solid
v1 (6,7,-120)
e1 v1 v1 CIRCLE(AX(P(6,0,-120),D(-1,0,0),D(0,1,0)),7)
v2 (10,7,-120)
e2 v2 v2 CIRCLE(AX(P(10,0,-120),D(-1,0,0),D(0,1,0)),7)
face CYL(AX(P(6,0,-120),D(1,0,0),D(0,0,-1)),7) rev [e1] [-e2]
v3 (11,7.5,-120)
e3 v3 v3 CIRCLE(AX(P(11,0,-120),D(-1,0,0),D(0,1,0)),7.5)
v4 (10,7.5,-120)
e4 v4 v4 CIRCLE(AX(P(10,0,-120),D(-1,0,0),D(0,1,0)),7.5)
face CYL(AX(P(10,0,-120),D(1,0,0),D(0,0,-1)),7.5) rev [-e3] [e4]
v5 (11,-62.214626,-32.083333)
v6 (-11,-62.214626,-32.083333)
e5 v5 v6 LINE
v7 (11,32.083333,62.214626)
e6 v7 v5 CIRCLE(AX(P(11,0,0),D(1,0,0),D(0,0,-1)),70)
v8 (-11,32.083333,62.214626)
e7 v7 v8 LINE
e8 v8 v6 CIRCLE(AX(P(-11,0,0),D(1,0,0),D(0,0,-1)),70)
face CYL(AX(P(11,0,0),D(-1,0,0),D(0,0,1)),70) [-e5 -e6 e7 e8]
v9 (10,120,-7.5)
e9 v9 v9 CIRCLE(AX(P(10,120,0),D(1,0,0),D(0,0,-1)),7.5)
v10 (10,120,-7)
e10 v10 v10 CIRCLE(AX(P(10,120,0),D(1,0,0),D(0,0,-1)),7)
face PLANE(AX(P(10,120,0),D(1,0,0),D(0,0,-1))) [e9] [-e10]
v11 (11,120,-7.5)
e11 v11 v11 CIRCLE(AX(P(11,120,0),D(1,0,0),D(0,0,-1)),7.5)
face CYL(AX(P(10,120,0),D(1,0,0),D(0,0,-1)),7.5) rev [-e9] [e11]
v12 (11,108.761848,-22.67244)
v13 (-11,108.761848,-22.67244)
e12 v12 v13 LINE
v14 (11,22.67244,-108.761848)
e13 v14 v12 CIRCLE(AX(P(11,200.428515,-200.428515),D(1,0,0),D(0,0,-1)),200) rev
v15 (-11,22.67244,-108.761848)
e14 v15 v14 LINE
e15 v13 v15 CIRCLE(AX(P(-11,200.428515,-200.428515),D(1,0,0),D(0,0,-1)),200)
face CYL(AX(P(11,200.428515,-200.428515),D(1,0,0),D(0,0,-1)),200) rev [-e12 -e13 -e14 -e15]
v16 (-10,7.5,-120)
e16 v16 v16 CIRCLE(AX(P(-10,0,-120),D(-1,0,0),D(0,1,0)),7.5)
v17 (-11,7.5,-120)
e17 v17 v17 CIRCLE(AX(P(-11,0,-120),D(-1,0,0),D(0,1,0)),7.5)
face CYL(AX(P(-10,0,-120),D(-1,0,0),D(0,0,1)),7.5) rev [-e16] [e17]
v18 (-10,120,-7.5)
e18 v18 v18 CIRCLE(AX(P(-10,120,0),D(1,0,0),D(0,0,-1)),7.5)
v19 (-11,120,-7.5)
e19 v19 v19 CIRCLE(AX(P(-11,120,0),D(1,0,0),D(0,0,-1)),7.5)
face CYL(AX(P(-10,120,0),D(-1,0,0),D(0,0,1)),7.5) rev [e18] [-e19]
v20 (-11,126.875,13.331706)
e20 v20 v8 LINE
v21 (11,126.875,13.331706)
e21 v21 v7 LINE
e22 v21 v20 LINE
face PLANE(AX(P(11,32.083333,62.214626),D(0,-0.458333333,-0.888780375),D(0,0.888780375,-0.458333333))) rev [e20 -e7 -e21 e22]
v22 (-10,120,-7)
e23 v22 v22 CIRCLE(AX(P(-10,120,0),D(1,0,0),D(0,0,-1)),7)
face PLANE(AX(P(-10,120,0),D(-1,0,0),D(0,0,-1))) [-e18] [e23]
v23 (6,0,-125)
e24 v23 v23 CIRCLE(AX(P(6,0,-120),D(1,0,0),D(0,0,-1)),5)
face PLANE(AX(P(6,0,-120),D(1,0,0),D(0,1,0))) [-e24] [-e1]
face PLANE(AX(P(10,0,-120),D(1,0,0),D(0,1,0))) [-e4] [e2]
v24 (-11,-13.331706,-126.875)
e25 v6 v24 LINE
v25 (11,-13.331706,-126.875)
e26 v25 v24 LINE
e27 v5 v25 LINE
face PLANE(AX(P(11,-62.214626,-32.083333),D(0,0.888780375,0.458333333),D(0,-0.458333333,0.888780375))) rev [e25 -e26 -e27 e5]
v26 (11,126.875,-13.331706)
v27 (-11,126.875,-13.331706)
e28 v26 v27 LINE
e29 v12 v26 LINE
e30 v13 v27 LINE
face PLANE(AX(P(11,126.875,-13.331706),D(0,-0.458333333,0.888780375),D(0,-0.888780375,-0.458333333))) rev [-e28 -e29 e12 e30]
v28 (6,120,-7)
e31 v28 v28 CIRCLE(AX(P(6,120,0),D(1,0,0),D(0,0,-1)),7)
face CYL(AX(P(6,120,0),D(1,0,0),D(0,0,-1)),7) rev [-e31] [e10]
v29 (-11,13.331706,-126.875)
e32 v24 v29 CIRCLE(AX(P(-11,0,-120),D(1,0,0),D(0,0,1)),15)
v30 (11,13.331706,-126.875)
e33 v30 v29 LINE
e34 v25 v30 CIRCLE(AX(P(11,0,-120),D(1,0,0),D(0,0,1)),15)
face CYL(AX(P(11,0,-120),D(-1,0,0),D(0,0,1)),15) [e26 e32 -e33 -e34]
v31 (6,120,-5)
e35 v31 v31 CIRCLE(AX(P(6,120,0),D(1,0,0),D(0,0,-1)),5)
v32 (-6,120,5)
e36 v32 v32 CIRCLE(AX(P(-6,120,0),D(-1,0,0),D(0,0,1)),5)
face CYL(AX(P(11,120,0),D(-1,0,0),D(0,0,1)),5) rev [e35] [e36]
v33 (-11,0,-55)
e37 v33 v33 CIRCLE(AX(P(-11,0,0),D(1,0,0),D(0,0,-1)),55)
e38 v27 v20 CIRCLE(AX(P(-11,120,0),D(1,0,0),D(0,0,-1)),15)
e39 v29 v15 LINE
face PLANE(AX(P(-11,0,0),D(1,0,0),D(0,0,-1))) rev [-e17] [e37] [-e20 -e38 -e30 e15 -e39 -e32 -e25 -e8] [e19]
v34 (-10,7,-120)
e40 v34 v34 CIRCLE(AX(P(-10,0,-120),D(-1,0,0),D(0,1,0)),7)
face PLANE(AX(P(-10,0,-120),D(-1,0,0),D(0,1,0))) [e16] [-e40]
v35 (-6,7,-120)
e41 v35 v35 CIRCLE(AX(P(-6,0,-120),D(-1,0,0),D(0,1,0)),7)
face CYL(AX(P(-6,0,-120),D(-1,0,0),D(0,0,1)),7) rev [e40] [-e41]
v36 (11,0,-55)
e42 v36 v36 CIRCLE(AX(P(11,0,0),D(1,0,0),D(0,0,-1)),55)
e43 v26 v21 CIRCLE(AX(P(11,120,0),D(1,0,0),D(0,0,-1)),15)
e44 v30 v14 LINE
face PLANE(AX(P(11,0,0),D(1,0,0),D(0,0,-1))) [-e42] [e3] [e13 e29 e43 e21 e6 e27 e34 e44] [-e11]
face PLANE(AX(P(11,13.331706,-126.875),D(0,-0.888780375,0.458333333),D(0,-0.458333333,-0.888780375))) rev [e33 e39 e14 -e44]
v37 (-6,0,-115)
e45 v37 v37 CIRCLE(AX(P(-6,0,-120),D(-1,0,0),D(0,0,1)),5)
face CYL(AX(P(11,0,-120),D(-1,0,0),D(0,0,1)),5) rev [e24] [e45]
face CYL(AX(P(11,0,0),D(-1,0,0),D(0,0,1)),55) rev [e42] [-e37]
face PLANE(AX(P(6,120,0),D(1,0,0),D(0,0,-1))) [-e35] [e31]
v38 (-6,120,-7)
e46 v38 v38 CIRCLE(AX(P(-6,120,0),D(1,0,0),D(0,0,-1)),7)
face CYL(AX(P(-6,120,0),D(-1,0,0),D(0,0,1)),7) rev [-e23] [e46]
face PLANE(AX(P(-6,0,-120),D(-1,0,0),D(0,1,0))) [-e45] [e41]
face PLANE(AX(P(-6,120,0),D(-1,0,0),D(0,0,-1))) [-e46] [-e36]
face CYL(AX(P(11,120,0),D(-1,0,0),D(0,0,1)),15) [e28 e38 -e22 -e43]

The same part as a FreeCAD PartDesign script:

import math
import FreeCAD as App
import Part
import Sketcher
from FreeCAD import Vector
Q = App.Units.Quantity


def edges_at(feature, points):
    """Names of the edges that pass closest to the given points."""
    edges = feature.Shape.Edges
    near = lambda p: min(range(len(edges)), key=lambda i: edges[i].distToShape(Part.Vertex(*p))[0])
    return sorted({f"Edge{near(p) + 1}" for p in points})

doc = App.newDocument("Part")
body = doc.addObject("PartDesign::Body", "Body")

# Sketch on YZ plane
sketch1 = body.newObject("Sketcher::SketchObject", "Sketch")
sketch1.AttachmentSupport = (doc.getObject("YZ_Plane"), [""])
sketch1.MapMode = "FlatFace"
sketch1.addGeometry([
    Part.LineSegment(Vector(127, 13, 0), Vector(32, 62, 0)),  # 0
    Part.ArcOfCircle(Part.Circle(Vector(0, 0, 0), Vector(0, 0, 1), 70), math.radians(63), math.radians(207)),  # 1
    Part.LineSegment(Vector(-62, -32, 0), Vector(-13, -127, 0)),  # 2
    Part.ArcOfCircle(Part.Circle(Vector(0, -120, 0), Vector(0, 0, 1), 15), math.radians(-153), math.radians(-27)),  # 3
    Part.LineSegment(Vector(13, -127, 0), Vector(52, -52, 0)),  # 4
    Part.LineSegment(Vector(52, -52, 0), Vector(127, -13, 0)),  # 5
    Part.ArcOfCircle(Part.Circle(Vector(120, 0, 0), Vector(0, 0, 1), 15), math.radians(-63), math.radians(63)),  # 6
    Part.Circle(Vector(0, -120, 0), Vector(0, 0, 1), 5),  # 7
    Part.Circle(Vector(0, 0, 0), Vector(0, 0, 1), 55),  # 8
    Part.Circle(Vector(120, 0, 0), Vector(0, 0, 1), 5),  # 9
], False)
sketch1.addConstraint([
    Sketcher.Constraint("Tangent", 0, 2, 1, 1),
    Sketcher.Constraint("Tangent", 1, 2, 2, 1),
    Sketcher.Constraint("Tangent", 2, 2, 3, 1),
    Sketcher.Constraint("Tangent", 3, 2, 4, 1),
    Sketcher.Constraint("Coincident", 4, 2, 5, 1),
    Sketcher.Constraint("Tangent", 5, 2, 6, 1),
    Sketcher.Constraint("Tangent", 6, 2, 0, 1),
    Sketcher.Constraint("Coincident", 1, 3, -1, 1),
    Sketcher.Constraint("Coincident", 8, 3, -1, 1),
    Sketcher.Constraint("Coincident", 7, 3, 3, 3),
    Sketcher.Constraint("Coincident", 9, 3, 6, 3),
    Sketcher.Constraint("Equal", 3, 6),
    Sketcher.Constraint("Equal", 7, 9),
    Sketcher.Constraint("Symmetric", 2, 2, 3, 2, -2),
    Sketcher.Constraint("Symmetric", 5, 2, 6, 2, -1),
    Sketcher.Constraint("Perpendicular", 0, 4),
    Sketcher.Constraint("Diameter", 7, Q("10 mm")),
    Sketcher.Constraint("Diameter", 8, Q("110 mm")),
    Sketcher.Constraint("Radius", 1, Q("70 mm")),
    Sketcher.Constraint("Radius", 3, Q("15 mm")),
    Sketcher.Constraint("DistanceY", 3, 3, -1, 1, Q("120 mm")),
])
pad1 = body.newObject("PartDesign::Pad", "Pad")
pad1.Profile = sketch1
pad1.Length = 22
pad1.Midplane = True

# Sketch on YZ plane
sketch2 = body.newObject("Sketcher::SketchObject", "Sketch001")
sketch2.AttachmentSupport = (doc.getObject("YZ_Plane"), [""])
sketch2.MapMode = "FlatFace"
sketch2.AttachmentOffset = App.Placement(Vector(0, 0, 11), App.Rotation())
sketch2.addGeometry(Part.Circle(Vector(120, 0, 0), Vector(0, 0, 1), 8), False)
sketch2.addConstraint([
    Sketcher.Constraint("PointOnObject", 0, 3, -1),
    Sketcher.Constraint("Diameter", 0, Q("15 mm")),
    Sketcher.Constraint("DistanceX", -1, 1, 0, 3, Q("120 mm")),
])
pocket1 = body.newObject("PartDesign::Pocket", "Pocket")
pocket1.Profile = sketch2
pocket1.Length = 1

# Sketch on YZ plane
sketch3 = body.newObject("Sketcher::SketchObject", "Sketch002")
sketch3.AttachmentSupport = (doc.getObject("YZ_Plane"), [""])
sketch3.MapMode = "FlatFace"
sketch3.AttachmentOffset = App.Placement(Vector(0, 0, 10), App.Rotation())
sketch3.addGeometry(Part.Circle(Vector(120, 0, 0), Vector(0, 0, 1), 7), False)
sketch3.addConstraint([
    Sketcher.Constraint("PointOnObject", 0, 3, -1),
    Sketcher.Constraint("Diameter", 0, Q("14 mm")),
    Sketcher.Constraint("DistanceX", -1, 1, 0, 3, Q("120 mm")),
])
pocket2 = body.newObject("PartDesign::Pocket", "Pocket001")
pocket2.Profile = sketch3
pocket2.Length = 4
doc.recompute()

datumplane = body.newObject("PartDesign::Plane", "DatumPlane")
datumplane.Placement = App.Placement(Vector(0, 0, 0), App.Rotation(Vector(0, -0.707106781, 0.707106781), Vector(-1, 0, 0), Vector(0, -0.707106781, -0.707106781), "ZXY"))
mirrored = body.newObject("PartDesign::Mirrored", "Mirrored")
mirrored.Originals = [pocket1, pocket2]
mirrored.MirrorPlane = (datumplane, [""])
body.Tip = mirrored
doc.recompute()

mirrored2 = body.newObject("PartDesign::Mirrored", "Mirrored001")
mirrored2.Originals = [pocket1, pocket2]
mirrored2.MirrorPlane = (doc.getObject("YZ_Plane"), [""])
body.Tip = mirrored2

# Sketch on YZ plane
sketch4 = body.newObject("Sketcher::SketchObject", "Sketch003")
sketch4.AttachmentSupport = (doc.getObject("YZ_Plane"), [""])
sketch4.MapMode = "FlatFace"
sketch4.AttachmentOffset = App.Placement(Vector(0, 0, -11), App.Rotation())
sketch4.addGeometry(Part.Circle(Vector(0, -120, 0), Vector(0, 0, 1), 8), False)
sketch4.addConstraint([
    Sketcher.Constraint("PointOnObject", 0, 3, -2),
    Sketcher.Constraint("Diameter", 0, Q("15 mm")),
    Sketcher.Constraint("DistanceY", 0, 3, -1, 1, Q("120 mm")),
])
pocket3 = body.newObject("PartDesign::Pocket", "Pocket002")
pocket3.Profile = sketch4
pocket3.Length = 1
pocket3.Reversed = True

# Sketch on YZ plane
sketch5 = body.newObject("Sketcher::SketchObject", "Sketch004")
sketch5.AttachmentSupport = (doc.getObject("YZ_Plane"), [""])
sketch5.MapMode = "FlatFace"
sketch5.AttachmentOffset = App.Placement(Vector(0, 0, -10), App.Rotation())
sketch5.addGeometry(Part.Circle(Vector(0, -120, 0), Vector(0, 0, 1), 7), False)
sketch5.addConstraint([
    Sketcher.Constraint("PointOnObject", 0, 3, -2),
    Sketcher.Constraint("Diameter", 0, Q("14 mm")),
    Sketcher.Constraint("DistanceY", 0, 3, -1, 1, Q("120 mm")),
])
pocket4 = body.newObject("PartDesign::Pocket", "Pocket003")
pocket4.Profile = sketch5
pocket4.Length = 4
pocket4.Reversed = True
doc.recompute()

fillet = body.newObject("PartDesign::Fillet", "Fillet")
fillet.Base = (pocket4, edges_at(pocket4, [(0, 51.963, -51.963)]))
fillet.Radius = 200

doc.recompute()
